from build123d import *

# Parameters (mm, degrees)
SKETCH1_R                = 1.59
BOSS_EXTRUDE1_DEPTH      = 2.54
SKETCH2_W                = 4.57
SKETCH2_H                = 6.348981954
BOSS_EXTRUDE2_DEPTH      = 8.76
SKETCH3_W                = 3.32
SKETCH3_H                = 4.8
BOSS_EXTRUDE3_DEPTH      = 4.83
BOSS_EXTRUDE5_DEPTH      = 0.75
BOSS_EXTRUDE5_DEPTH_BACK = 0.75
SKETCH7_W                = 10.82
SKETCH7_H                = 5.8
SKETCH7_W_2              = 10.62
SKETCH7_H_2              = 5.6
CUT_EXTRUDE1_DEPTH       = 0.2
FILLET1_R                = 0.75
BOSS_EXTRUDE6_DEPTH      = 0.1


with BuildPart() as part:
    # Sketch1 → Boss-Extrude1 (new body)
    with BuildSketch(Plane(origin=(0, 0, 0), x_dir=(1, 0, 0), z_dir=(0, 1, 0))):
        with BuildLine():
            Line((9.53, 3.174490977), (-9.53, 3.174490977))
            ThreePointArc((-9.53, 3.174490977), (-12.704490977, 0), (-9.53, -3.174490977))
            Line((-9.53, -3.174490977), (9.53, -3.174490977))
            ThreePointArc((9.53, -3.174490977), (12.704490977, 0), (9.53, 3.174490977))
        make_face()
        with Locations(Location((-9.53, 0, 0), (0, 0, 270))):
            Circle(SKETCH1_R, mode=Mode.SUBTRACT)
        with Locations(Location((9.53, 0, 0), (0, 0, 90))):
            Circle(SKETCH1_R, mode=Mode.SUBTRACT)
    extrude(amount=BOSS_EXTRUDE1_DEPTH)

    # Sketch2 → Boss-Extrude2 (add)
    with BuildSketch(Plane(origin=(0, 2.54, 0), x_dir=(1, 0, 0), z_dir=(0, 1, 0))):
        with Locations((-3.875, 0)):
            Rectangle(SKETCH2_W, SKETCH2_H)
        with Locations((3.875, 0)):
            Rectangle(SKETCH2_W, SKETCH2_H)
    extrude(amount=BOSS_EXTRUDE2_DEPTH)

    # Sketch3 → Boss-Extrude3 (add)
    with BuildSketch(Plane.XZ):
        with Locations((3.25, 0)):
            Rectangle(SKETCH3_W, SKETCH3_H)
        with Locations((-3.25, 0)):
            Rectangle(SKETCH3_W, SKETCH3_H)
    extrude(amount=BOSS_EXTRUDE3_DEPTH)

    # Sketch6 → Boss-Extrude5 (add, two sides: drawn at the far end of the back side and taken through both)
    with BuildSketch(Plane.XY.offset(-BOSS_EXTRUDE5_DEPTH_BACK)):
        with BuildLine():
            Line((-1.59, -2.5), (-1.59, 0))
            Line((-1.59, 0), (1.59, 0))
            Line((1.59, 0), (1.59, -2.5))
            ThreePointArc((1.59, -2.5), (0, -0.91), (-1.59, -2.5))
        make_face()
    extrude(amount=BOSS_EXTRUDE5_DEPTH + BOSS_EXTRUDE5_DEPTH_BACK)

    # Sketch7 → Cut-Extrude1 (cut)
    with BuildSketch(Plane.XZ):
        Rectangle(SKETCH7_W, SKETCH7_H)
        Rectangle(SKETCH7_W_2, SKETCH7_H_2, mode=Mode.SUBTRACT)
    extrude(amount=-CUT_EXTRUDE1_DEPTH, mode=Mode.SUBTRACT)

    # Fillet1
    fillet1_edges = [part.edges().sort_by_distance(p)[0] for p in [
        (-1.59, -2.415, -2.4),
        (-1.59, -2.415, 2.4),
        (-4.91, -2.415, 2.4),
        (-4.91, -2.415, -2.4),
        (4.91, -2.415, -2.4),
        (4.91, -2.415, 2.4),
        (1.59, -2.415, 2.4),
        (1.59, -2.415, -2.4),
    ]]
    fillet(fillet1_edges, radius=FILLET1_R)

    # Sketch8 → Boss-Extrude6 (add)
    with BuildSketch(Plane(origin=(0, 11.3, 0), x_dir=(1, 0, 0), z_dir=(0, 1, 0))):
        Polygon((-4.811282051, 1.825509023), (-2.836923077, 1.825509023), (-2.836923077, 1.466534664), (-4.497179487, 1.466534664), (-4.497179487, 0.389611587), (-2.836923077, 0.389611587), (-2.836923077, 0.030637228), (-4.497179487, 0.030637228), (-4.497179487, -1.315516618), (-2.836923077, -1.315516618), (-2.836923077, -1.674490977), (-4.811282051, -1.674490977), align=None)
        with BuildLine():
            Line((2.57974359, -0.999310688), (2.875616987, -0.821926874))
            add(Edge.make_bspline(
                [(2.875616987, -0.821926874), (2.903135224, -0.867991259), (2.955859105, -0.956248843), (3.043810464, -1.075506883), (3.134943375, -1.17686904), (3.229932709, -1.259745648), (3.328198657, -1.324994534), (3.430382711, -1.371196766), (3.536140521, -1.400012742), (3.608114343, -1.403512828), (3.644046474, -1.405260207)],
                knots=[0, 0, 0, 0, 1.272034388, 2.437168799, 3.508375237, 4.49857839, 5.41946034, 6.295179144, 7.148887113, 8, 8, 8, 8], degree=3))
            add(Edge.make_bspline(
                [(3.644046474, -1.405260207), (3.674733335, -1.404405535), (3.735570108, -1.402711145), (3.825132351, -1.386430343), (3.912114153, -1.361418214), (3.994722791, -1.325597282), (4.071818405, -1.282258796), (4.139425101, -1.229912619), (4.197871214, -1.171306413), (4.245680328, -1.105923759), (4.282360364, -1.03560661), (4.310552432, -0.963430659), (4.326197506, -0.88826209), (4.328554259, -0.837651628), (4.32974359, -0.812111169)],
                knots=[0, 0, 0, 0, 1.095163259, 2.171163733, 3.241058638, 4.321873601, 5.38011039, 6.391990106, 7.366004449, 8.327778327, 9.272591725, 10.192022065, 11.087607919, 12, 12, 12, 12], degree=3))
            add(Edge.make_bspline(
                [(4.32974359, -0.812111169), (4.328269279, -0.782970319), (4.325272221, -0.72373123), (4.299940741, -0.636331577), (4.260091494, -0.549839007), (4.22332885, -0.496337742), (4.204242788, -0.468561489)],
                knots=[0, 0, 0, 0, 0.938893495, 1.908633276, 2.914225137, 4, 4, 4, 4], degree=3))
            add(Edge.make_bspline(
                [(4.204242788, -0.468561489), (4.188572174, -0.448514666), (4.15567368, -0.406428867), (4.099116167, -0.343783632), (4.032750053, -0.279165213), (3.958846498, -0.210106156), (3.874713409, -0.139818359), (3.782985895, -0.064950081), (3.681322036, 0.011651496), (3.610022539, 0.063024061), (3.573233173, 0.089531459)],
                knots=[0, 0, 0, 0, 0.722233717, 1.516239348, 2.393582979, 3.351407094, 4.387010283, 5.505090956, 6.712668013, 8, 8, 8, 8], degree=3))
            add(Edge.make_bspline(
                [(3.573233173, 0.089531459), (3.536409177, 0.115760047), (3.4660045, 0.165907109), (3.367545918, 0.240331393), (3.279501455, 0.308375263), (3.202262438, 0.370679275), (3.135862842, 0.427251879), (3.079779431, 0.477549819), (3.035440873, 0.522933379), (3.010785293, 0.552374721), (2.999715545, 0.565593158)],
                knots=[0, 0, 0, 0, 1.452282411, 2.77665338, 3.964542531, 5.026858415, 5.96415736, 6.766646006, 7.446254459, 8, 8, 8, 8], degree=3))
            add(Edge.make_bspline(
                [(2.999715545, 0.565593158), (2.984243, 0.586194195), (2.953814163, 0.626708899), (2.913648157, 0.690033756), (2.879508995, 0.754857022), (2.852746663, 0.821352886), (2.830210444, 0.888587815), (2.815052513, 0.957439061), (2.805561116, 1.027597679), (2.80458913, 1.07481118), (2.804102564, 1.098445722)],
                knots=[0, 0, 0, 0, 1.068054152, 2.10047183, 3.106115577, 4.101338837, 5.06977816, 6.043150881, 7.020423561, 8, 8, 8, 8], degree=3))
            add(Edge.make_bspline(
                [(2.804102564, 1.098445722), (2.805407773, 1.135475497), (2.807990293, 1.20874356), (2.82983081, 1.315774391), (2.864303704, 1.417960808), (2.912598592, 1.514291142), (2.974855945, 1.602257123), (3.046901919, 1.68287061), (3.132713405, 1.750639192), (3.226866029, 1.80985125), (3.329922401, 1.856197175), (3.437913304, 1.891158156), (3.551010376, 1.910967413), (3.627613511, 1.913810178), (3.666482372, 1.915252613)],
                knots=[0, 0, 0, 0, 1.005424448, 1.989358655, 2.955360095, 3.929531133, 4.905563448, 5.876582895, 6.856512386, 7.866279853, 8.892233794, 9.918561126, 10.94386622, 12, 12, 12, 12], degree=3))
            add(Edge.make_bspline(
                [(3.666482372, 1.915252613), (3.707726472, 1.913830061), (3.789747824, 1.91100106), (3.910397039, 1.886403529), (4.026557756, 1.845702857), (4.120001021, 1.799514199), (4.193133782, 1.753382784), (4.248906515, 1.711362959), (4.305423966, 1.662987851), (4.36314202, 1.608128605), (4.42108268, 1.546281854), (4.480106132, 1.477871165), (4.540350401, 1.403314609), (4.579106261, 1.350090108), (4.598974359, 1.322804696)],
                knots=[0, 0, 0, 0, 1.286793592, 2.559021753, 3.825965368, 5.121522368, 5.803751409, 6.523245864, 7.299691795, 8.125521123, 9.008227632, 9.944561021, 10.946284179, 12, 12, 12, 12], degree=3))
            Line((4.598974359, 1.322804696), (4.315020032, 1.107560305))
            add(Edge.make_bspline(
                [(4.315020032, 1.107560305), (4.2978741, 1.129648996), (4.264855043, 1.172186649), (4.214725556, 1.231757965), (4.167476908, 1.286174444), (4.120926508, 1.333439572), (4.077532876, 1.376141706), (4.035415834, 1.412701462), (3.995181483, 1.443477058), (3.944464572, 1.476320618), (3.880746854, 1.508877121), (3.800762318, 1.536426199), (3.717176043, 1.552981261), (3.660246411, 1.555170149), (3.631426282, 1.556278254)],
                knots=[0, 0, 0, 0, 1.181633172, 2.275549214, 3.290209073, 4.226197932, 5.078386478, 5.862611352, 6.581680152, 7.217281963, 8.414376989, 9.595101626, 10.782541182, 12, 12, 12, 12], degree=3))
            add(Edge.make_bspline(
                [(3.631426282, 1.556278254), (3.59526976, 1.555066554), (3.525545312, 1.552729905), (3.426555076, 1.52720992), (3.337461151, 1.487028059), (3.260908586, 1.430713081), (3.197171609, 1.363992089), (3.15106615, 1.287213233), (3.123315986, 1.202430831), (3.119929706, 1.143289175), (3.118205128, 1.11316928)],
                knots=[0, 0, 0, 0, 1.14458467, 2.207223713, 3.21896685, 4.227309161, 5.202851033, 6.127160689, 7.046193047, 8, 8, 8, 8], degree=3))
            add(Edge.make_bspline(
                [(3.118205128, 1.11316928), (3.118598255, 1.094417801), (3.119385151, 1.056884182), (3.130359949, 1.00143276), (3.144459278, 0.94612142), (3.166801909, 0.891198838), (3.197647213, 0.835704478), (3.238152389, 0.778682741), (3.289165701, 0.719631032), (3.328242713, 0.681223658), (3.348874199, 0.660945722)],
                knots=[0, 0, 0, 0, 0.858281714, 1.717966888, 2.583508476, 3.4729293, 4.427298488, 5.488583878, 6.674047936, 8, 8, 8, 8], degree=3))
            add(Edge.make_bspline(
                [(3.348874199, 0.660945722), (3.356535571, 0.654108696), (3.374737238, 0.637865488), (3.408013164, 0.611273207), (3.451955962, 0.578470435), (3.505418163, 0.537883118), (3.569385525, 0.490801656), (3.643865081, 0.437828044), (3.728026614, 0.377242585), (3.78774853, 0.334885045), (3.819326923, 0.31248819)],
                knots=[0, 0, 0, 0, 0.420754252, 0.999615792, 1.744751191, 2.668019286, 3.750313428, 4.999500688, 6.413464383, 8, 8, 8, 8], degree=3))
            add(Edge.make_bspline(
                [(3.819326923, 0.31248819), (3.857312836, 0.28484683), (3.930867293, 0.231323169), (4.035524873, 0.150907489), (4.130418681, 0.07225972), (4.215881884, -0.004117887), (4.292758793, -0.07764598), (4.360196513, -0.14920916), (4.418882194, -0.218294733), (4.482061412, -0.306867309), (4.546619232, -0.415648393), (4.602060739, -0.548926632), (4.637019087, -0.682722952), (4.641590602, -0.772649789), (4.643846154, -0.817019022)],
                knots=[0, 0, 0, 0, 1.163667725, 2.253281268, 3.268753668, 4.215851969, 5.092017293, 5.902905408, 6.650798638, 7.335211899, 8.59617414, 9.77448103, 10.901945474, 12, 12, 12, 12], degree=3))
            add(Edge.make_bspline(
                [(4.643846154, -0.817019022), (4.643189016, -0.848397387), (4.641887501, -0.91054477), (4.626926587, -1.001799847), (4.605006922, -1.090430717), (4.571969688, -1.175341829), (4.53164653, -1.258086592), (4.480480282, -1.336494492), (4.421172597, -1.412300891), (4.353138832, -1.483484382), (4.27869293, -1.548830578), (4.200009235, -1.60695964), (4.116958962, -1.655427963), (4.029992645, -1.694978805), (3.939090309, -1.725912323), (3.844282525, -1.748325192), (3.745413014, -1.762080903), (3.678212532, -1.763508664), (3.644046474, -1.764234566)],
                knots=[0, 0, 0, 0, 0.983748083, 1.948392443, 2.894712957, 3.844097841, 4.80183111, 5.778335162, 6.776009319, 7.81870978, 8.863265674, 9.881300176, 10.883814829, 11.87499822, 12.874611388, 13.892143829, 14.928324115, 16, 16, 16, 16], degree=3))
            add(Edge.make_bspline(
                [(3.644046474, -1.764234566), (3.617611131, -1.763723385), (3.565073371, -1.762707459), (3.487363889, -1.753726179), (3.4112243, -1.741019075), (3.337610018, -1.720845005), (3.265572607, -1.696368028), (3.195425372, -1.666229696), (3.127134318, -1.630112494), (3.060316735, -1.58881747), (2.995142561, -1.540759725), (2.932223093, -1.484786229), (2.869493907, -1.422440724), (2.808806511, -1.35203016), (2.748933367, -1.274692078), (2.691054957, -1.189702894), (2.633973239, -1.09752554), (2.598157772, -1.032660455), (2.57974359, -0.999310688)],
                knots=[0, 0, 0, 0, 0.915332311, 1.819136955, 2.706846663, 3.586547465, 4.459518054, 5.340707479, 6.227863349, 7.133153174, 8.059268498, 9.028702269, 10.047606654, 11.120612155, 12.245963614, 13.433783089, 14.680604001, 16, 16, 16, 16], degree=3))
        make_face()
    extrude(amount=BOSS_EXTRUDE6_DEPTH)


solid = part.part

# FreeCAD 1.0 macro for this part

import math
import FreeCAD as App
import Part
import Sketcher
Q = App.Units.Quantity


def edges_at(feature, points):
    """Names of the edges that pass closest to the given points."""
    edges = feature.Shape.Edges
    near = lambda p: min(range(len(edges)), key=lambda i: edges[i].distToShape(Part.Vertex(*p))[0])
    return sorted({f"Edge{near(p) + 1}" for p in points})

doc = App.newDocument("Part")
body = doc.addObject("PartDesign::Body", "Body")

sketch1 = body.newObject("Sketcher::SketchObject", "Sketch")
sketch1.AttachmentSupport = (doc.getObject("XZ_Plane"), [""])
sketch1.MapMode = "FlatFace"
sketch1.addGeometry([
    Part.LineSegment(App.Vector(9.5, -3.2, 0), App.Vector(-9.5, -3.2, 0)),
    Part.ArcOfCircle(Part.Circle(App.Vector(-9.5, 0, 0), App.Vector(0, 0, 1), 3.2), math.radians(90), math.radians(270)),
    Part.LineSegment(App.Vector(-9.5, 3.2, 0), App.Vector(9.5, 3.2, 0)),
    Part.ArcOfCircle(Part.Circle(App.Vector(9.5, 0, 0), App.Vector(0, 0, 1), 3.2), math.radians(-90), math.radians(90)),
    Part.Circle(App.Vector(-9.5, 0, 0), App.Vector(0, 0, 1), 1.6),
    Part.Circle(App.Vector(9.5, 0, 0), App.Vector(0, 0, 1), 1.6),
], False)
sketch1.addConstraint([
    Sketcher.Constraint("Tangent", 0, 2, 1, 2),
    Sketcher.Constraint("Tangent", 1, 1, 2, 1),
    Sketcher.Constraint("Tangent", 2, 2, 3, 2),
    Sketcher.Constraint("Tangent", 3, 1, 0, 1),
    Sketcher.Constraint("Horizontal", 0),
    Sketcher.Constraint("Horizontal", 2),
    Sketcher.Constraint("Coincident", 4, 3, 1, 3),
    Sketcher.Constraint("Coincident", 5, 3, 3, 3),
    Sketcher.Constraint("Equal", 4, 5),
    Sketcher.Constraint("Symmetric", 1, 3, 3, 3, -1, 1),
    Sketcher.Constraint("Diameter", 4, Q("3.18 mm")),
    Sketcher.Constraint("DistanceX", 0, 2, 0, 1, Q("19.06 mm")),
    Sketcher.Constraint("Radius", 1, Q("3.174491 mm")),
])
pad1 = body.newObject("PartDesign::Pad", "Pad")
pad1.Profile = sketch1
pad1.Length = 2.54
pad1.Reversed = True

sketch2 = body.newObject("Sketcher::SketchObject", "Sketch001")
sketch2.AttachmentSupport = (doc.getObject("XZ_Plane"), [""])
sketch2.MapMode = "FlatFace"
sketch2.AttachmentOffset = App.Placement(App.Vector(0, 0, -2.54), App.Rotation())
sketch2.addGeometry([
    Part.LineSegment(App.Vector(-6.2, -3.2, 0), App.Vector(-6.2, 3.2, 0)),
    Part.LineSegment(App.Vector(-6.2, 3.2, 0), App.Vector(-1.6, 3.2, 0)),
    Part.LineSegment(App.Vector(-1.6, 3.2, 0), App.Vector(-1.6, -3.2, 0)),
    Part.LineSegment(App.Vector(-1.6, -3.2, 0), App.Vector(-6.2, -3.2, 0)),
    Part.LineSegment(App.Vector(1.6, -3.2, 0), App.Vector(1.6, 3.2, 0)),
    Part.LineSegment(App.Vector(1.6, 3.2, 0), App.Vector(6.2, 3.2, 0)),
    Part.LineSegment(App.Vector(6.2, 3.2, 0), App.Vector(6.2, -3.2, 0)),
    Part.LineSegment(App.Vector(6.2, -3.2, 0), App.Vector(1.6, -3.2, 0)),
], False)
sketch2.addConstraint([
    Sketcher.Constraint("Coincident", 0, 2, 1, 1),
    Sketcher.Constraint("Coincident", 1, 2, 2, 1),
    Sketcher.Constraint("Coincident", 2, 2, 3, 1),
    Sketcher.Constraint("Coincident", 3, 2, 0, 1),
    Sketcher.Constraint("Coincident", 4, 2, 5, 1),
    Sketcher.Constraint("Coincident", 5, 2, 6, 1),
    Sketcher.Constraint("Coincident", 6, 2, 7, 1),
    Sketcher.Constraint("Coincident", 7, 2, 4, 1),
    Sketcher.Constraint("Vertical", 0),
    Sketcher.Constraint("Horizontal", 1),
    Sketcher.Constraint("Vertical", 2),
    Sketcher.Constraint("Horizontal", 3),
    Sketcher.Constraint("Vertical", 4),
    Sketcher.Constraint("Horizontal", 5),
    Sketcher.Constraint("Vertical", 6),
    Sketcher.Constraint("Horizontal", 7),
    Sketcher.Constraint("Symmetric", 2, 2, 4, 2, -1, 1),
    Sketcher.Constraint("Symmetric", 0, 2, 6, 2, -1, 1),
    Sketcher.Constraint("Horizontal", 1, 2, 4, 2),
    Sketcher.Constraint("DistanceX", 1, 1, 1, 2, Q("4.57 mm")),
    Sketcher.Constraint("DistanceX", 0, 2, -1, 1, Q("6.16 mm")),
    Sketcher.Constraint("DistanceY", 0, 1, 0, 2, Q("6.348982 mm")),
])
pad2 = body.newObject("PartDesign::Pad", "Pad001")
pad2.Profile = sketch2
pad2.Length = 8.76
pad2.Reversed = True

sketch3 = body.newObject("Sketcher::SketchObject", "Sketch002")
sketch3.AttachmentSupport = (doc.getObject("XZ_Plane"), [""])
sketch3.MapMode = "FlatFace"
sketch3.addGeometry([
    Part.LineSegment(App.Vector(1.6, 2.4, 0), App.Vector(1.6, -2.4, 0)),
    Part.LineSegment(App.Vector(1.6, -2.4, 0), App.Vector(4.9, -2.4, 0)),
    Part.LineSegment(App.Vector(4.9, -2.4, 0), App.Vector(4.9, 2.4, 0)),
    Part.LineSegment(App.Vector(4.9, 2.4, 0), App.Vector(1.6, 2.4, 0)),
    Part.LineSegment(App.Vector(-4.9, 2.4, 0), App.Vector(-4.9, -2.4, 0)),
    Part.LineSegment(App.Vector(-4.9, -2.4, 0), App.Vector(-1.6, -2.4, 0)),
    Part.LineSegment(App.Vector(-1.6, -2.4, 0), App.Vector(-1.6, 2.4, 0)),
    Part.LineSegment(App.Vector(-1.6, 2.4, 0), App.Vector(-4.9, 2.4, 0)),
], False)
sketch3.addConstraint([
    Sketcher.Constraint("Coincident", 0, 2, 1, 1),
    Sketcher.Constraint("Coincident", 1, 2, 2, 1),
    Sketcher.Constraint("Coincident", 2, 2, 3, 1),
    Sketcher.Constraint("Coincident", 3, 2, 0, 1),
    Sketcher.Constraint("Coincident", 4, 2, 5, 1),
    Sketcher.Constraint("Coincident", 5, 2, 6, 1),
    Sketcher.Constraint("Coincident", 6, 2, 7, 1),
    Sketcher.Constraint("Coincident", 7, 2, 4, 1),
    Sketcher.Constraint("Vertical", 0),
    Sketcher.Constraint("Horizontal", 1),
    Sketcher.Constraint("Vertical", 2),
    Sketcher.Constraint("Horizontal", 3),
    Sketcher.Constraint("Vertical", 4),
    Sketcher.Constraint("Horizontal", 5),
    Sketcher.Constraint("Vertical", 6),
    Sketcher.Constraint("Horizontal", 7),
    Sketcher.Constraint("Symmetric", 2, 2, 4, 2, -1, 1),
    Sketcher.Constraint("Symmetric", 0, 2, 6, 2, -1, 1),
    Sketcher.Constraint("Horizontal", 1, 2, 4, 2),
    Sketcher.Constraint("DistanceY", 0, 2, 0, 1, Q("4.8 mm")),
    Sketcher.Constraint("DistanceX", 1, 1, 1, 2, Q("3.32 mm")),
    Sketcher.Constraint("DistanceX", 4, 2, 0, 2, Q("6.5 mm")),
])
pad3 = body.newObject("PartDesign::Pad", "Pad002")
pad3.Profile = sketch3
pad3.Length = 4.83

sketch4 = body.newObject("Sketcher::SketchObject", "Sketch003")
sketch4.AttachmentSupport = (doc.getObject("XY_Plane"), [""])
sketch4.MapMode = "FlatFace"
sketch4.addGeometry([
    Part.LineSegment(App.Vector(-1.6, 0, 0), App.Vector(-1.6, -2.5, 0)),
    Part.ArcOfCircle(Part.Circle(App.Vector(0, -2.5, 0), App.Vector(0, 0, 1), 1.6), math.radians(0), math.radians(180)),
    Part.LineSegment(App.Vector(1.6, -2.5, 0), App.Vector(1.6, 0, 0)),
    Part.LineSegment(App.Vector(1.6, 0, 0), App.Vector(-1.6, 0, 0)),
], False)
sketch4.addConstraint([
    Sketcher.Constraint("Tangent", 0, 2, 1, 2),
    Sketcher.Constraint("Tangent", 1, 1, 2, 1),
    Sketcher.Constraint("Coincident", 2, 2, 3, 1),
    Sketcher.Constraint("Coincident", 3, 2, 0, 1),
    Sketcher.Constraint("Vertical", 0),
    Sketcher.Constraint("Vertical", 2),
    Sketcher.Constraint("Horizontal", 3),
    Sketcher.Constraint("Symmetric", 2, 2, 3, 2, -1, 1),
    Sketcher.Constraint("Radius", 1, Q("1.59 mm")),
    Sketcher.Constraint("DistanceY", 0, 2, 0, 1, Q("2.5 mm")),
])
pad4 = body.newObject("PartDesign::Pad", "Pad003")
pad4.Profile = sketch4
pad4.Type = "TwoLengths"
pad4.Length = 0.75
pad4.Length2 = 0.75

sketch5 = body.newObject("Sketcher::SketchObject", "Sketch004")
sketch5.AttachmentSupport = (doc.getObject("XZ_Plane"), [""])
sketch5.MapMode = "FlatFace"
sketch5.addGeometry([
    Part.LineSegment(App.Vector(-5, 3, 0), App.Vector(-5, -3, 0)),
    Part.LineSegment(App.Vector(-5, -3, 0), App.Vector(5, -3, 0)),
    Part.LineSegment(App.Vector(5, -3, 0), App.Vector(5, 3, 0)),
    Part.LineSegment(App.Vector(5, 3, 0), App.Vector(-5, 3, 0)),
    Part.LineSegment(App.Vector(5, -3, 0), App.Vector(-5, -3, 0)),
    Part.LineSegment(App.Vector(-5, -3, 0), App.Vector(-5, 3, 0)),
    Part.LineSegment(App.Vector(-5, 3, 0), App.Vector(5, 3, 0)),
    Part.LineSegment(App.Vector(5, 3, 0), App.Vector(5, -3, 0)),
], False)
sketch5.addConstraint([
    Sketcher.Constraint("Coincident", 0, 2, 1, 1),
    Sketcher.Constraint("Coincident", 1, 2, 2, 1),
    Sketcher.Constraint("Coincident", 2, 2, 3, 1),
    Sketcher.Constraint("Coincident", 3, 2, 0, 1),
    Sketcher.Constraint("Coincident", 4, 2, 5, 1),
    Sketcher.Constraint("Coincident", 5, 2, 6, 1),
    Sketcher.Constraint("Coincident", 6, 2, 7, 1),
    Sketcher.Constraint("Coincident", 7, 2, 4, 1),
    Sketcher.Constraint("Vertical", 0),
    Sketcher.Constraint("Horizontal", 1),
    Sketcher.Constraint("Vertical", 2),
    Sketcher.Constraint("Horizontal", 3),
    Sketcher.Constraint("Horizontal", 4),
    Sketcher.Constraint("Vertical", 5),
    Sketcher.Constraint("Horizontal", 6),
    Sketcher.Constraint("Vertical", 7),
    Sketcher.Constraint("Symmetric", 0, 2, 2, 2, -1, 1),
    Sketcher.Constraint("Symmetric", 4, 2, 6, 2, -1, 1),
    Sketcher.Constraint("DistanceY", 0, 2, 0, 1, Q("5.8 mm")),
    Sketcher.Constraint("DistanceY", 5, 1, 5, 2, Q("5.6 mm")),
    Sketcher.Constraint("DistanceX", 1, 1, 1, 2, Q("10.82 mm")),
    Sketcher.Constraint("DistanceX", 4, 2, 4, 1, Q("10.62 mm")),
])
pocket1 = body.newObject("PartDesign::Pocket", "Pocket")
pocket1.Profile = sketch5
pocket1.Length = 0.2
doc.recompute()

fillet = body.newObject("PartDesign::Fillet", "Fillet")
fillet.Base = (pocket1, edges_at(pocket1, [
    (-1.59, -2.415, -2.4),
    (-1.59, -2.415, 2.4),
    (-4.91, -2.415, 2.4),
    (-4.91, -2.415, -2.4),
    (4.91, -2.415, -2.4),
    (4.91, -2.415, 2.4),
    (1.59, -2.415, 2.4),
    (1.59, -2.415, -2.4),
]))
fillet.Radius = 0.75

sketch6 = body.newObject("Sketcher::SketchObject", "Sketch005")
sketch6.AttachmentSupport = (doc.getObject("XZ_Plane"), [""])
sketch6.MapMode = "FlatFace"
sketch6.AttachmentOffset = App.Placement(App.Vector(0, 0, -11.3), App.Rotation())
sketch6.addGeometry([
    Part.LineSegment(App.Vector(-2.836923, -1.825509, 0), App.Vector(-4.811282, -1.825509, 0)),
    Part.LineSegment(App.Vector(-4.811282, -1.825509, 0), App.Vector(-4.811282, 1.674491, 0)),
    Part.LineSegment(App.Vector(-4.811282, 1.674491, 0), App.Vector(-2.836923, 1.674491, 0)),
    Part.LineSegment(App.Vector(-2.836923, 1.674491, 0), App.Vector(-2.836923, 1.315517, 0)),
    Part.LineSegment(App.Vector(-2.836923, 1.315517, 0), App.Vector(-4.497179, 1.315517, 0)),
    Part.LineSegment(App.Vector(-4.497179, 1.315517, 0), App.Vector(-4.497179, -0.030637, 0)),
    Part.LineSegment(App.Vector(-4.497179, -0.030637, 0), App.Vector(-2.836923, -0.030637, 0)),
    Part.LineSegment(App.Vector(-2.836923, -0.030637, 0), App.Vector(-2.836923, -0.389612, 0)),
    Part.LineSegment(App.Vector(-2.836923, -0.389612, 0), App.Vector(-4.497179, -0.389612, 0)),
    Part.LineSegment(App.Vector(-4.497179, -0.389612, 0), App.Vector(-4.497179, -1.466535, 0)),
    Part.LineSegment(App.Vector(-4.497179, -1.466535, 0), App.Vector(-2.836923, -1.466535, 0)),
    Part.LineSegment(App.Vector(-2.836923, -1.466535, 0), App.Vector(-2.836923, -1.825509, 0)),
    Part.LineSegment(App.Vector(2.875617, 0.821927, 0), App.Vector(2.579744, 0.999311, 0)),
    Part.BSplineCurve([App.Vector(3.644046, 1.764235, 0), App.Vector(3.617611, 1.763723, 0), App.Vector(3.565073, 1.762707, 0), App.Vector(3.487364, 1.753726, 0), App.Vector(3.411224, 1.741019, 0), App.Vector(3.33761, 1.720845, 0), App.Vector(3.265573, 1.696368, 0), App.Vector(3.195425, 1.66623, 0), App.Vector(3.127134, 1.630112, 0), App.Vector(3.060317, 1.588817, 0), App.Vector(2.995143, 1.54076, 0), App.Vector(2.932223, 1.484786, 0), App.Vector(2.869494, 1.422441, 0), App.Vector(2.808807, 1.35203, 0), App.Vector(2.748933, 1.274692, 0), App.Vector(2.691055, 1.189703, 0), App.Vector(2.633973, 1.097526, 0), App.Vector(2.598158, 1.03266, 0), App.Vector(2.579744, 0.999311, 0)], [4, 1, 1, 1, 1, 1, 1, 1, 1, 1, 1, 1, 1, 1, 1, 1, 4], [0, 0.915332311, 1.819136955, 2.706846663, 3.586547465, 4.459518054, 5.340707479, 6.227863349, 7.133153174, 8.059268498, 9.028702269, 10.047606654, 11.120612155, 12.245963614, 13.433783089, 14.680604001, 16], False, 3, [1, 1, 1, 1, 1, 1, 1, 1, 1, 1, 1, 1, 1, 1, 1, 1, 1, 1, 1], False),
    Part.BSplineCurve([App.Vector(4.643846, 0.817019, 0), App.Vector(4.643189, 0.848397, 0), App.Vector(4.641888, 0.910545, 0), App.Vector(4.626927, 1.0018, 0), App.Vector(4.605007, 1.090431, 0), App.Vector(4.57197, 1.175342, 0), App.Vector(4.531647, 1.258087, 0), App.Vector(4.48048, 1.336494, 0), App.Vector(4.421173, 1.412301, 0), App.Vector(4.353139, 1.483484, 0), App.Vector(4.278693, 1.548831, 0), App.Vector(4.200009, 1.60696, 0), App.Vector(4.116959, 1.655428, 0), App.Vector(4.029993, 1.694979, 0), App.Vector(3.93909, 1.725912, 0), App.Vector(3.844283, 1.748325, 0), App.Vector(3.745413, 1.762081, 0), App.Vector(3.678213, 1.763509, 0), App.Vector(3.644046, 1.764235, 0)], [4, 1, 1, 1, 1, 1, 1, 1, 1, 1, 1, 1, 1, 1, 1, 1, 4], [0, 0.983748083, 1.948392443, 2.894712957, 3.844097841, 4.80183111, 5.778335162, 6.776009319, 7.81870978, 8.863265674, 9.881300176, 10.883814829, 11.87499822, 12.874611388, 13.892143829, 14.928324115, 16], False, 3, [1, 1, 1, 1, 1, 1, 1, 1, 1, 1, 1, 1, 1, 1, 1, 1, 1, 1, 1], False),
    Part.BSplineCurve([App.Vector(3.819327, -0.312488, 0), App.Vector(3.857313, -0.284847, 0), App.Vector(3.930867, -0.231323, 0), App.Vector(4.035525, -0.150907, 0), App.Vector(4.130419, -0.07226, 0), App.Vector(4.215882, 0.004118, 0), App.Vector(4.292759, 0.077646, 0), App.Vector(4.360197, 0.149209, 0), App.Vector(4.418882, 0.218295, 0), App.Vector(4.482061, 0.306867, 0), App.Vector(4.546619, 0.415648, 0), App.Vector(4.602061, 0.548927, 0), App.Vector(4.637019, 0.682723, 0), App.Vector(4.641591, 0.77265, 0), App.Vector(4.643846, 0.817019, 0)], [4, 1, 1, 1, 1, 1, 1, 1, 1, 1, 1, 1, 4], [0, 1.163667725, 2.253281268, 3.268753668, 4.215851969, 5.092017293, 5.902905408, 6.650798638, 7.335211899, 8.59617414, 9.77448103, 10.901945474, 12], False, 3, [1, 1, 1, 1, 1, 1, 1, 1, 1, 1, 1, 1, 1, 1, 1], False),
    Part.BSplineCurve([App.Vector(3.348874, -0.660946, 0), App.Vector(3.356536, -0.654109, 0), App.Vector(3.374737, -0.637865, 0), App.Vector(3.408013, -0.611273, 0), App.Vector(3.451956, -0.57847, 0), App.Vector(3.505418, -0.537883, 0), App.Vector(3.569386, -0.490802, 0), App.Vector(3.643865, -0.437828, 0), App.Vector(3.728027, -0.377243, 0), App.Vector(3.787749, -0.334885, 0), App.Vector(3.819327, -0.312488, 0)], [4, 1, 1, 1, 1, 1, 1, 1, 4], [0, 0.420754252, 0.999615792, 1.744751191, 2.668019286, 3.750313428, 4.999500688, 6.413464383, 8], False, 3, [1, 1, 1, 1, 1, 1, 1, 1, 1, 1, 1], False),
    Part.BSplineCurve([App.Vector(3.118205, -1.113169, 0), App.Vector(3.118598, -1.094418, 0), App.Vector(3.119385, -1.056884, 0), App.Vector(3.13036, -1.001433, 0), App.Vector(3.144459, -0.946121, 0), App.Vector(3.166802, -0.891199, 0), App.Vector(3.197647, -0.835704, 0), App.Vector(3.238152, -0.778683, 0), App.Vector(3.289166, -0.719631, 0), App.Vector(3.328243, -0.681224, 0), App.Vector(3.348874, -0.660946, 0)], [4, 1, 1, 1, 1, 1, 1, 1, 4], [0, 0.858281714, 1.717966888, 2.583508476, 3.4729293, 4.427298488, 5.488583878, 6.674047936, 8], False, 3, [1, 1, 1, 1, 1, 1, 1, 1, 1, 1, 1], False),
    Part.BSplineCurve([App.Vector(3.631426, -1.556278, 0), App.Vector(3.59527, -1.555067, 0), App.Vector(3.525545, -1.55273, 0), App.Vector(3.426555, -1.52721, 0), App.Vector(3.337461, -1.487028, 0), App.Vector(3.260909, -1.430713, 0), App.Vector(3.197172, -1.363992, 0), App.Vector(3.151066, -1.287213, 0), App.Vector(3.123316, -1.202431, 0), App.Vector(3.11993, -1.143289, 0), App.Vector(3.118205, -1.113169, 0)], [4, 1, 1, 1, 1, 1, 1, 1, 4], [0, 1.14458467, 2.207223713, 3.21896685, 4.227309161, 5.202851033, 6.127160689, 7.046193047, 8], False, 3, [1, 1, 1, 1, 1, 1, 1, 1, 1, 1, 1], False),
    Part.BSplineCurve([App.Vector(4.31502, -1.10756, 0), App.Vector(4.297874, -1.129649, 0), App.Vector(4.264855, -1.172187, 0), App.Vector(4.214726, -1.231758, 0), App.Vector(4.167477, -1.286174, 0), App.Vector(4.120927, -1.33344, 0), App.Vector(4.077533, -1.376142, 0), App.Vector(4.035416, -1.412701, 0), App.Vector(3.995181, -1.443477, 0), App.Vector(3.944465, -1.476321, 0), App.Vector(3.880747, -1.508877, 0), App.Vector(3.800762, -1.536426, 0), App.Vector(3.717176, -1.552981, 0), App.Vector(3.660246, -1.55517, 0), App.Vector(3.631426, -1.556278, 0)], [4, 1, 1, 1, 1, 1, 1, 1, 1, 1, 1, 1, 4], [0, 1.181633172, 2.275549214, 3.290209073, 4.226197932, 5.078386478, 5.862611352, 6.581680152, 7.217281963, 8.414376989, 9.595101626, 10.782541182, 12], False, 3, [1, 1, 1, 1, 1, 1, 1, 1, 1, 1, 1, 1, 1, 1, 1], False),
    Part.LineSegment(App.Vector(4.31502, -1.10756, 0), App.Vector(4.598974, -1.322805, 0)),
    Part.BSplineCurve([App.Vector(3.666482, -1.915253, 0), App.Vector(3.707726, -1.91383, 0), App.Vector(3.789748, -1.911001, 0), App.Vector(3.910397, -1.886404, 0), App.Vector(4.026558, -1.845703, 0), App.Vector(4.120001, -1.799514, 0), App.Vector(4.193134, -1.753383, 0), App.Vector(4.248907, -1.711363, 0), App.Vector(4.305424, -1.662988, 0), App.Vector(4.363142, -1.608129, 0), App.Vector(4.421083, -1.546282, 0), App.Vector(4.480106, -1.477871, 0), App.Vector(4.54035, -1.403315, 0), App.Vector(4.579106, -1.35009, 0), App.Vector(4.598974, -1.322805, 0)], [4, 1, 1, 1, 1, 1, 1, 1, 1, 1, 1, 1, 4], [0, 1.286793592, 2.559021753, 3.825965368, 5.121522368, 5.803751409, 6.523245864, 7.299691795, 8.125521123, 9.008227632, 9.944561021, 10.946284179, 12], False, 3, [1, 1, 1, 1, 1, 1, 1, 1, 1, 1, 1, 1, 1, 1, 1], False),
    Part.BSplineCurve([App.Vector(2.804103, -1.098446, 0), App.Vector(2.805408, -1.135475, 0), App.Vector(2.80799, -1.208744, 0), App.Vector(2.829831, -1.315774, 0), App.Vector(2.864304, -1.417961, 0), App.Vector(2.912599, -1.514291, 0), App.Vector(2.974856, -1.602257, 0), App.Vector(3.046902, -1.682871, 0), App.Vector(3.132713, -1.750639, 0), App.Vector(3.226866, -1.809851, 0), App.Vector(3.329922, -1.856197, 0), App.Vector(3.437913, -1.891158, 0), App.Vector(3.55101, -1.910967, 0), App.Vector(3.627614, -1.91381, 0), App.Vector(3.666482, -1.915253, 0)], [4, 1, 1, 1, 1, 1, 1, 1, 1, 1, 1, 1, 4], [0, 1.005424448, 1.989358655, 2.955360095, 3.929531133, 4.905563448, 5.876582895, 6.856512386, 7.866279853, 8.892233794, 9.918561126, 10.94386622, 12], False, 3, [1, 1, 1, 1, 1, 1, 1, 1, 1, 1, 1, 1, 1, 1, 1], False),
    Part.BSplineCurve([App.Vector(2.999716, -0.565593, 0), App.Vector(2.984243, -0.586194, 0), App.Vector(2.953814, -0.626709, 0), App.Vector(2.913648, -0.690034, 0), App.Vector(2.879509, -0.754857, 0), App.Vector(2.852747, -0.821353, 0), App.Vector(2.83021, -0.888588, 0), App.Vector(2.815053, -0.957439, 0), App.Vector(2.805561, -1.027598, 0), App.Vector(2.804589, -1.074811, 0), App.Vector(2.804103, -1.098446, 0)], [4, 1, 1, 1, 1, 1, 1, 1, 4], [0, 1.068054152, 2.10047183, 3.106115577, 4.101338837, 5.06977816, 6.043150881, 7.020423561, 8], False, 3, [1, 1, 1, 1, 1, 1, 1, 1, 1, 1, 1], False),
    Part.BSplineCurve([App.Vector(3.573233, -0.089531, 0), App.Vector(3.536409, -0.11576, 0), App.Vector(3.466004, -0.165907, 0), App.Vector(3.367546, -0.240331, 0), App.Vector(3.279501, -0.308375, 0), App.Vector(3.202262, -0.370679, 0), App.Vector(3.135863, -0.427252, 0), App.Vector(3.079779, -0.47755, 0), App.Vector(3.035441, -0.522933, 0), App.Vector(3.010785, -0.552375, 0), App.Vector(2.999716, -0.565593, 0)], [4, 1, 1, 1, 1, 1, 1, 1, 4], [0, 1.452282411, 2.77665338, 3.964542531, 5.026858415, 5.96415736, 6.766646006, 7.446254459, 8], False, 3, [1, 1, 1, 1, 1, 1, 1, 1, 1, 1, 1], False),
    Part.BSplineCurve([App.Vector(4.204243, 0.468561, 0), App.Vector(4.188572, 0.448515, 0), App.Vector(4.155674, 0.406429, 0), App.Vector(4.099116, 0.343784, 0), App.Vector(4.03275, 0.279165, 0), App.Vector(3.958846, 0.210106, 0), App.Vector(3.874713, 0.139818, 0), App.Vector(3.782986, 0.06495, 0), App.Vector(3.681322, -0.011651, 0), App.Vector(3.610023, -0.063024, 0), App.Vector(3.573233, -0.089531, 0)], [4, 1, 1, 1, 1, 1, 1, 1, 4], [0, 0.722233717, 1.516239348, 2.393582979, 3.351407094, 4.387010283, 5.505090956, 6.712668013, 8], False, 3, [1, 1, 1, 1, 1, 1, 1, 1, 1, 1, 1], False),
    Part.BSplineCurve([App.Vector(4.329744, 0.812111, 0), App.Vector(4.328269, 0.78297, 0), App.Vector(4.325272, 0.723731, 0), App.Vector(4.299941, 0.636332, 0), App.Vector(4.260091, 0.549839, 0), App.Vector(4.223329, 0.496338, 0), App.Vector(4.204243, 0.468561, 0)], [4, 1, 1, 1, 4], [0, 0.938893495, 1.908633276, 2.914225137, 4], False, 3, [1, 1, 1, 1, 1, 1, 1], False),
    Part.BSplineCurve([App.Vector(3.644046, 1.40526, 0), App.Vector(3.674733, 1.404406, 0), App.Vector(3.73557, 1.402711, 0), App.Vector(3.825132, 1.38643, 0), App.Vector(3.912114, 1.361418, 0), App.Vector(3.994723, 1.325597, 0), App.Vector(4.071818, 1.282259, 0), App.Vector(4.139425, 1.229913, 0), App.Vector(4.197871, 1.171306, 0), App.Vector(4.24568, 1.105924, 0), App.Vector(4.28236, 1.035607, 0), App.Vector(4.310552, 0.963431, 0), App.Vector(4.326198, 0.888262, 0), App.Vector(4.328554, 0.837652, 0), App.Vector(4.329744, 0.812111, 0)], [4, 1, 1, 1, 1, 1, 1, 1, 1, 1, 1, 1, 4], [0, 1.095163259, 2.171163733, 3.241058638, 4.321873601, 5.38011039, 6.391990106, 7.366004449, 8.327778327, 9.272591725, 10.192022065, 11.087607919, 12], False, 3, [1, 1, 1, 1, 1, 1, 1, 1, 1, 1, 1, 1, 1, 1, 1], False),
    Part.BSplineCurve([App.Vector(2.875617, 0.821927, 0), App.Vector(2.903135, 0.867991, 0), App.Vector(2.955859, 0.956249, 0), App.Vector(3.04381, 1.075507, 0), App.Vector(3.134943, 1.176869, 0), App.Vector(3.229933, 1.259746, 0), App.Vector(3.328199, 1.324995, 0), App.Vector(3.430383, 1.371197, 0), App.Vector(3.536141, 1.400013, 0), App.Vector(3.608114, 1.403513, 0), App.Vector(3.644046, 1.40526, 0)], [4, 1, 1, 1, 1, 1, 1, 1, 4], [0, 1.272034388, 2.437168799, 3.508375237, 4.49857839, 5.41946034, 6.295179144, 7.148887113, 8], False, 3, [1, 1, 1, 1, 1, 1, 1, 1, 1, 1, 1], False),
], False)
sketch6.addConstraint([
    Sketcher.Constraint("Block", 13),
    Sketcher.Constraint("Block", 14),
    Sketcher.Constraint("Block", 15),
    Sketcher.Constraint("Block", 16),
    Sketcher.Constraint("Block", 17),
    Sketcher.Constraint("Block", 18),
    Sketcher.Constraint("Block", 19),
    Sketcher.Constraint("Block", 21),
    Sketcher.Constraint("Block", 22),
    Sketcher.Constraint("Block", 23),
    Sketcher.Constraint("Block", 24),
    Sketcher.Constraint("Block", 25),
    Sketcher.Constraint("Block", 26),
    Sketcher.Constraint("Block", 27),
    Sketcher.Constraint("Block", 28),
    Sketcher.Constraint("Coincident", 0, 2, 1, 1),
    Sketcher.Constraint("Coincident", 1, 2, 2, 1),
    Sketcher.Constraint("Coincident", 2, 2, 3, 1),
    Sketcher.Constraint("Coincident", 3, 2, 4, 1),
    Sketcher.Constraint("Coincident", 4, 2, 5, 1),
    Sketcher.Constraint("Coincident", 5, 2, 6, 1),
    Sketcher.Constraint("Coincident", 6, 2, 7, 1),
    Sketcher.Constraint("Coincident", 7, 2, 8, 1),
    Sketcher.Constraint("Coincident", 8, 2, 9, 1),
    Sketcher.Constraint("Coincident", 9, 2, 10, 1),
    Sketcher.Constraint("Coincident", 10, 2, 11, 1),
    Sketcher.Constraint("Coincident", 11, 2, 0, 1),
    Sketcher.Constraint("Coincident", 12, 2, 13, 2),
    Sketcher.Constraint("Coincident", 19, 1, 20, 1),
    Sketcher.Constraint("Coincident", 20, 2, 21, 2),
    Sketcher.Constraint("Coincident", 28, 1, 12, 1),
    Sketcher.Constraint("Horizontal", 0),
    Sketcher.Constraint("Vertical", 1),
    Sketcher.Constraint("Horizontal", 2),
    Sketcher.Constraint("Vertical", 3),
    Sketcher.Constraint("Horizontal", 4),
    Sketcher.Constraint("Vertical", 5),
    Sketcher.Constraint("Horizontal", 6),
    Sketcher.Constraint("Vertical", 7),
    Sketcher.Constraint("Horizontal", 8),
    Sketcher.Constraint("Vertical", 9),
    Sketcher.Constraint("Horizontal", 10),
    Sketcher.Constraint("Vertical", 11),
    Sketcher.Constraint("Vertical", 3, 2, 6, 2),
    Sketcher.Constraint("Vertical", 5, 2, 8, 2),
    Sketcher.Constraint("Vertical", 7, 2, 10, 2),
    Sketcher.Constraint("Equal", 3, 7),
    Sketcher.Constraint("Equal", 7, 11),
    Sketcher.Constraint("DistanceY", 1, 1, 1, 2, Q("3.5 mm")),
    Sketcher.Constraint("DistanceX", 0, 2, 0, 1, Q("1.974359 mm")),
    Sketcher.Constraint("DistanceX", 4, 2, 4, 1, Q("1.660256 mm")),
    Sketcher.Constraint("DistanceY", 3, 2, 3, 1, Q("0.358974 mm")),
    Sketcher.Constraint("DistanceY", 5, 2, 5, 1, Q("1.346154 mm")),
    Sketcher.Constraint("DistanceY", 0, 2, -1, 1, Q("1.825509 mm")),
    Sketcher.Constraint("DistanceX", 4, 2, -1, 1, Q("4.497179 mm")),
])
pad5 = body.newObject("PartDesign::Pad", "Pad004")
pad5.Profile = sketch6
pad5.Length = 0.1
pad5.Reversed = True

doc.recompute()
